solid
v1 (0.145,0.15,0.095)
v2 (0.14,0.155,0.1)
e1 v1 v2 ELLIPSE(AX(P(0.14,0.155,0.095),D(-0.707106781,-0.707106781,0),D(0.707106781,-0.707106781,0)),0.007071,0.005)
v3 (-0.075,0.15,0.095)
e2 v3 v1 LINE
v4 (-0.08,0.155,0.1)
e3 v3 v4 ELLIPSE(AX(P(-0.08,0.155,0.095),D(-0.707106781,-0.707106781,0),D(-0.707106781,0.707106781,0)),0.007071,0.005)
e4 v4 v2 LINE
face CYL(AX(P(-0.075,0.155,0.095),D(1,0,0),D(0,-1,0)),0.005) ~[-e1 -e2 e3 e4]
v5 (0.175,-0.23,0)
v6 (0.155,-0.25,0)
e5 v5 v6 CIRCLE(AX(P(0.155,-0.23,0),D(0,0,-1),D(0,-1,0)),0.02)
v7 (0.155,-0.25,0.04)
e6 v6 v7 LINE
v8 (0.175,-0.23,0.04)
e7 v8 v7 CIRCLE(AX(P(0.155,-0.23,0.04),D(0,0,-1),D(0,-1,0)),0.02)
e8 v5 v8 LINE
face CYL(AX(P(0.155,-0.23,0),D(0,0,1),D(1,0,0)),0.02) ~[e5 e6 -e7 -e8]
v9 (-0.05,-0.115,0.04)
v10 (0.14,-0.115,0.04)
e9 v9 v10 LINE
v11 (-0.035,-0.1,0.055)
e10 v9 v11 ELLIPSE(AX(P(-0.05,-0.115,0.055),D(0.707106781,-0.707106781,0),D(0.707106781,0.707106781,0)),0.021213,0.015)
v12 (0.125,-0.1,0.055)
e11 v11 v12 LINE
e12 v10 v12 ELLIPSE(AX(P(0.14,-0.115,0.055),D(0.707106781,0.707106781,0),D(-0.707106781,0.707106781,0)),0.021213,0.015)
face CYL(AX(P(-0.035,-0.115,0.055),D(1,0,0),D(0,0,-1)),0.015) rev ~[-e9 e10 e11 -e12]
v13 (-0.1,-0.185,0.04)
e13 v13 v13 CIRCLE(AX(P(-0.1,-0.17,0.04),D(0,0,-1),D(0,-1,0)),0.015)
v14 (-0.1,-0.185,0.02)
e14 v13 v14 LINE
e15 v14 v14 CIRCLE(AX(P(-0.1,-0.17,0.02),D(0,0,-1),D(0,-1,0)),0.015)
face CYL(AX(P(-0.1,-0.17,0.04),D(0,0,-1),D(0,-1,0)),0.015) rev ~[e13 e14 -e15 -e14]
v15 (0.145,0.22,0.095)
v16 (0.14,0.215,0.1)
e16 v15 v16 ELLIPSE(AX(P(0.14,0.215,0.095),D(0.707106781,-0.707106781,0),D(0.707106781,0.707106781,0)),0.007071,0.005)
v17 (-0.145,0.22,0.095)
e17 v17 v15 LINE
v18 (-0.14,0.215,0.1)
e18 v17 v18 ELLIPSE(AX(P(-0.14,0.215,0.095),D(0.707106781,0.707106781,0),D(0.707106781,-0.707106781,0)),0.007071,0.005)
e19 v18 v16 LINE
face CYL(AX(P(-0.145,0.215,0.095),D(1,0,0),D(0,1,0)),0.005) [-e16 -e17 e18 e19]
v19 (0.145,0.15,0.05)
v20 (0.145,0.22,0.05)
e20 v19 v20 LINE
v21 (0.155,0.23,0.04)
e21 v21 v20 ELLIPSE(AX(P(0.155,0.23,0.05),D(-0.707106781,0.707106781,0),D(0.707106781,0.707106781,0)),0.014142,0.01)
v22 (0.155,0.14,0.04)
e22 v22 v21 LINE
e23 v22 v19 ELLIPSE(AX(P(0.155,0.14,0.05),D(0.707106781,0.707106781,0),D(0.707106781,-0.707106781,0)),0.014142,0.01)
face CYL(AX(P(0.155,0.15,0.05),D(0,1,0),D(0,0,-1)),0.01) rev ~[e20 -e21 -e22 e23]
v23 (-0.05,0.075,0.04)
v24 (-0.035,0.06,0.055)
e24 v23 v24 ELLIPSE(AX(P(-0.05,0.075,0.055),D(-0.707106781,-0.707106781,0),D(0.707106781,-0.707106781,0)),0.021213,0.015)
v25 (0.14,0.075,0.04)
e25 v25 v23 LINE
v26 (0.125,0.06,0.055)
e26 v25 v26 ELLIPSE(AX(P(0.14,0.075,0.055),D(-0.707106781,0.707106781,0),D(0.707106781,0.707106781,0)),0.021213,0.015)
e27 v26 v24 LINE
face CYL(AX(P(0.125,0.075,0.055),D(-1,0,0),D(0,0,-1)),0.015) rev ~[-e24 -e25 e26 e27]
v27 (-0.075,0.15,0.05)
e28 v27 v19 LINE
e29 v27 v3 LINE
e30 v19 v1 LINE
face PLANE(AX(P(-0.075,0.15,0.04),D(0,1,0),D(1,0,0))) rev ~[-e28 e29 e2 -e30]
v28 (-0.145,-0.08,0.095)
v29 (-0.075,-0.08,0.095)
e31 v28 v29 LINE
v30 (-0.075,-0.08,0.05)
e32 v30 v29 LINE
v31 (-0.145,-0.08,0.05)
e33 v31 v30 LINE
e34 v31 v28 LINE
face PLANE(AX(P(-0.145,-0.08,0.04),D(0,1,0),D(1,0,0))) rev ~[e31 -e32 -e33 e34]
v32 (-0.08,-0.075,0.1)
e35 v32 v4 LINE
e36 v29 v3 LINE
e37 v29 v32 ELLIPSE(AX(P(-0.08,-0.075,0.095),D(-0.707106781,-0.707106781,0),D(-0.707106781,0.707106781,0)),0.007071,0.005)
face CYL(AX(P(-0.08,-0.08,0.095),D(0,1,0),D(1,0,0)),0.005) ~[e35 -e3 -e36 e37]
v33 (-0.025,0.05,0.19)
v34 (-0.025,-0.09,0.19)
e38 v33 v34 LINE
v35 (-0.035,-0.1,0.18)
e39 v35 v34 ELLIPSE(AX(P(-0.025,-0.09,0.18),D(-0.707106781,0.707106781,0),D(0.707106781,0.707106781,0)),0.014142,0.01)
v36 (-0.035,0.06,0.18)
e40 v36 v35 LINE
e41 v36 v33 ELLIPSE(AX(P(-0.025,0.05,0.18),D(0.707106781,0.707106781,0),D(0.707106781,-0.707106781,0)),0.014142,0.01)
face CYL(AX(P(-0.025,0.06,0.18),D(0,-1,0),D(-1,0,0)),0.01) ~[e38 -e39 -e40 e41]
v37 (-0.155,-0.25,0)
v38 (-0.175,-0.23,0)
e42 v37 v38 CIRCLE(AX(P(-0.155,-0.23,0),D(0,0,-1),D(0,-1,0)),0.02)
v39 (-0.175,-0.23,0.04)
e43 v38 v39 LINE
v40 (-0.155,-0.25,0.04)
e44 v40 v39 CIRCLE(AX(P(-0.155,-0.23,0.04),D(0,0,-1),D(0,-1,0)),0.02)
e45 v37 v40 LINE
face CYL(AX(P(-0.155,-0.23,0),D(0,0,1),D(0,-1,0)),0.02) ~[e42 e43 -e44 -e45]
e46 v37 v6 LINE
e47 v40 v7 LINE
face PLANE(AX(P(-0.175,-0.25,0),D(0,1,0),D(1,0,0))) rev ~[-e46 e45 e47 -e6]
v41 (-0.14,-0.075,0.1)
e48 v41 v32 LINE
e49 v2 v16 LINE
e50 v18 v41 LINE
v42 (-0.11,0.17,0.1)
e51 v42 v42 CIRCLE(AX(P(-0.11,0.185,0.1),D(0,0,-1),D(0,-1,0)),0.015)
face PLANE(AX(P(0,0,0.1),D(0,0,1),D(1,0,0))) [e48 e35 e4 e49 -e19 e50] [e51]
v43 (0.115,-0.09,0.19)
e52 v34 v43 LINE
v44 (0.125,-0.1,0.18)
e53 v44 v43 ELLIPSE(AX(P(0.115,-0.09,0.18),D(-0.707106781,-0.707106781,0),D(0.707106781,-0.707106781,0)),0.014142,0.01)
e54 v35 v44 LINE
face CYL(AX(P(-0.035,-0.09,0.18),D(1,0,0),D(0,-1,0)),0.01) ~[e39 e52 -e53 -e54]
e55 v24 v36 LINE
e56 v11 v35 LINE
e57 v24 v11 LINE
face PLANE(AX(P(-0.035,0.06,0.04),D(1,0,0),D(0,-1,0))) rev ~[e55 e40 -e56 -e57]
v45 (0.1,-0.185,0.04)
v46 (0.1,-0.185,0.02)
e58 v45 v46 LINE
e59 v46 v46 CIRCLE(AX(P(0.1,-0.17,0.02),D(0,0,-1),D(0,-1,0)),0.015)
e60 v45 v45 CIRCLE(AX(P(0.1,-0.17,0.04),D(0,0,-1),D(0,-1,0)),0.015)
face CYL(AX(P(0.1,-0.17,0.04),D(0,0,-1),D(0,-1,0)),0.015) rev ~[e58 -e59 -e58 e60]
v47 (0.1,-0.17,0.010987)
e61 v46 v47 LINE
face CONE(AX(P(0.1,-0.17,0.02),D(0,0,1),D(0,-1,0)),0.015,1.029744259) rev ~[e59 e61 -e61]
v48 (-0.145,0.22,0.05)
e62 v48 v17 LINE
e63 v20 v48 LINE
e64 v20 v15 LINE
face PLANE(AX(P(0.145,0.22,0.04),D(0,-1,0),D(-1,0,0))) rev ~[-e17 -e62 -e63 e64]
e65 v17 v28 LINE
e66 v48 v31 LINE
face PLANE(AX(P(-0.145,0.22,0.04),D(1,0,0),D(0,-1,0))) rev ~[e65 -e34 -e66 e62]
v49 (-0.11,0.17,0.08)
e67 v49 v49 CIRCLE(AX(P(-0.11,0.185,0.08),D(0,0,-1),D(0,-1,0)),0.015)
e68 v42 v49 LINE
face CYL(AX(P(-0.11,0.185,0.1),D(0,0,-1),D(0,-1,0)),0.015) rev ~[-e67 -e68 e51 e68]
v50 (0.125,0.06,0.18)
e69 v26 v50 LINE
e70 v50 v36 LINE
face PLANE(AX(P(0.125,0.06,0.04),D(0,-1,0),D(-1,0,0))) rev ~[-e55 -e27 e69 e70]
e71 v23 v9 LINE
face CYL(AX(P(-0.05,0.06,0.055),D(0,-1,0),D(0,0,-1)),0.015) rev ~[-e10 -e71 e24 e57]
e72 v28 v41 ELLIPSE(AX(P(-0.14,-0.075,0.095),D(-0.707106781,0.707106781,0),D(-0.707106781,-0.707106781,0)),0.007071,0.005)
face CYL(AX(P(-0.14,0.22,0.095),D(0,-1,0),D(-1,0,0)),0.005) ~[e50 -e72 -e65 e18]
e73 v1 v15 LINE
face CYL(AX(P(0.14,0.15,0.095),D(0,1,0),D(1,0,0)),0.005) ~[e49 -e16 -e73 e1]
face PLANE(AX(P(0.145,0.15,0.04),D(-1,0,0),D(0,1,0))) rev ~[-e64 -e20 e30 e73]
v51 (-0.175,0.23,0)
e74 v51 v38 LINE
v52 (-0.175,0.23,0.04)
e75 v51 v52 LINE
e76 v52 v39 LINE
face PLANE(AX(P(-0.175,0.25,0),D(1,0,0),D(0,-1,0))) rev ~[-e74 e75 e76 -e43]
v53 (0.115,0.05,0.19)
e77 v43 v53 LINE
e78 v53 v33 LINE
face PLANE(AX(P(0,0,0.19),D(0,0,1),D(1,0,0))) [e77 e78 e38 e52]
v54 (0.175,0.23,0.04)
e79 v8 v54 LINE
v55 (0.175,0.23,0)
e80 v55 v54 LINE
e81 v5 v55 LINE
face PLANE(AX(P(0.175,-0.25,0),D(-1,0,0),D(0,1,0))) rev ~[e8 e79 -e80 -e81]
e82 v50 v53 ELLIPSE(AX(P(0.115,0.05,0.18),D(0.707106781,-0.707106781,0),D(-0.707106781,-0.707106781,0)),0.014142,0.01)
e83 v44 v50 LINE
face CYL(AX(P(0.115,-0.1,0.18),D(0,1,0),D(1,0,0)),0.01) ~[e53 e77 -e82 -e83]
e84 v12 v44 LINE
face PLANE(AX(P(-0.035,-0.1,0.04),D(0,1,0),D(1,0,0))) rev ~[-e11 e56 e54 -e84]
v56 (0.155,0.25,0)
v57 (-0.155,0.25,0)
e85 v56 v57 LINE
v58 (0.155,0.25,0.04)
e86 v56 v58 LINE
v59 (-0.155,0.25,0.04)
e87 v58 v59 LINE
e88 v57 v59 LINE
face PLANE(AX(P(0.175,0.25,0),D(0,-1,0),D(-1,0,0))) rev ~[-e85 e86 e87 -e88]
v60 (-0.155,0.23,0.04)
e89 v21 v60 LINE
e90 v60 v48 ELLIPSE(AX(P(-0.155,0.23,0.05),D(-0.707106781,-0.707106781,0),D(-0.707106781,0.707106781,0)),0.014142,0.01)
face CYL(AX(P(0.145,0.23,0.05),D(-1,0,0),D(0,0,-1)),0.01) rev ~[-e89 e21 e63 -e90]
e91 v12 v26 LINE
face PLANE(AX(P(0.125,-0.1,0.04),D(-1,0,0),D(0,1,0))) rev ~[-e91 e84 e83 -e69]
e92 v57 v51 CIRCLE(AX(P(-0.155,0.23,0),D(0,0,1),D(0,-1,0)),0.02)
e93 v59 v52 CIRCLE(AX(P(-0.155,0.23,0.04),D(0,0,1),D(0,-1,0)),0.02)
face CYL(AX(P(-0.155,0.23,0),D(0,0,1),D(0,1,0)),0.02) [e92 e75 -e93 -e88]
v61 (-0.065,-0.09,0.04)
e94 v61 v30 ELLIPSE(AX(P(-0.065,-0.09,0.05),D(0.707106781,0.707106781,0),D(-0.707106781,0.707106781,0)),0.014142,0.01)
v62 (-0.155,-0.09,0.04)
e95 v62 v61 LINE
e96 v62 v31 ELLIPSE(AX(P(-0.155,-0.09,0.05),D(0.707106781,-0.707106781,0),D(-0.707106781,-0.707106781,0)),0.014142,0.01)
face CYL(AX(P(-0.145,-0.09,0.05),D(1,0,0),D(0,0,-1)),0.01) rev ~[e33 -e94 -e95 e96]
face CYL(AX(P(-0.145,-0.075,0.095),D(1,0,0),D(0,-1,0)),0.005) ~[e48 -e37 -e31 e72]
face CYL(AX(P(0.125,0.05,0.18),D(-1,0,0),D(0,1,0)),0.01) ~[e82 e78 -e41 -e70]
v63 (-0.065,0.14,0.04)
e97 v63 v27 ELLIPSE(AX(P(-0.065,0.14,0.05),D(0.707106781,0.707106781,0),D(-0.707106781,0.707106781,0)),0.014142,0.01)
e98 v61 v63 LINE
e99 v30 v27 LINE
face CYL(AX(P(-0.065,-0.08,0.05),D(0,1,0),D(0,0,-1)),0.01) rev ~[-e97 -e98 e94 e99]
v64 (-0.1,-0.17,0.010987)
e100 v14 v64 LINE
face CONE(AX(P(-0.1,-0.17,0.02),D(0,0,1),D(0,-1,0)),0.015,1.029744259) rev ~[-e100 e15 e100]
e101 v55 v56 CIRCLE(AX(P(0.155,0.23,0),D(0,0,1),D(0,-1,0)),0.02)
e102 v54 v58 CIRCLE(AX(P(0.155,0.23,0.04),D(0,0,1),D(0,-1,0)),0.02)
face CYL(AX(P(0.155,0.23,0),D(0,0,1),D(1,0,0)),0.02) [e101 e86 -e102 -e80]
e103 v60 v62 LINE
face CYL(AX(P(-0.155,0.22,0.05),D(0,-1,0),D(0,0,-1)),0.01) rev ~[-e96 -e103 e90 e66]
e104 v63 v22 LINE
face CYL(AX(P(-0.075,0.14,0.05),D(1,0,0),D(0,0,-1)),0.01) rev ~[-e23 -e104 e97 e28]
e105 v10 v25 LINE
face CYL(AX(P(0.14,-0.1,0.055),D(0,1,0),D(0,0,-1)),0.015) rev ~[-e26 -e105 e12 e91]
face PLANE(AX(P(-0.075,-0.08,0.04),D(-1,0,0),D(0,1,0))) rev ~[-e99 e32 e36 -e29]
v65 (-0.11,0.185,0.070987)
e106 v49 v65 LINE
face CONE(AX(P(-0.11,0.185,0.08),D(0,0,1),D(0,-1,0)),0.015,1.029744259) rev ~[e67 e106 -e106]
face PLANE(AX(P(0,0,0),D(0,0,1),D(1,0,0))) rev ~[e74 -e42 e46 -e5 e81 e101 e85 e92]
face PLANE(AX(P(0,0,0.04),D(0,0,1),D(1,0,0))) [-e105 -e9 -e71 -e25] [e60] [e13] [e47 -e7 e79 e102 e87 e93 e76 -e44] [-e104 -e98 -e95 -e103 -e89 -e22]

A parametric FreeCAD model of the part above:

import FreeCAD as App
import Part
import Sketcher
Q = App.Units.Quantity


def edges_at(feature, points):
    """Names of the edges that pass closest to the given points."""
    edges = feature.Shape.Edges
    near = lambda p: min(range(len(edges)), key=lambda i: edges[i].distToShape(Part.Vertex(*p))[0])
    return sorted({f"Edge{near(p) + 1}" for p in points})


def add_polygon(sketch, points):
    """Adds a closed chain of lines whose ends are joined by coincident constraints."""
    first, n = sketch.GeometryCount, len(points)
    for a, b in zip(points, points[1:] + points[:1]):
        sketch.addGeometry(Part.LineSegment(App.Vector(*a, 0), App.Vector(*b, 0)), False)
    for i in range(n):
        sketch.addConstraint(Sketcher.Constraint("Coincident", first + i, 2, first + (i + 1) % n, 1))

doc = App.newDocument("Part")
params = doc.addObject("Spreadsheet::Sheet", "Params")
for row, (alias, value) in enumerate([
    ("sketch1_height", "0.5 mm"),
    ("sketch1_width", "0.35 mm"),
    ("pad1_length", "0.04 mm"),
    ("sketch2_height", "0.3 mm"),
    ("sketch2_width", "0.07 mm"),
    ("pad2_length", "0.06 mm"),
    ("sketch3_height", "0.07 mm"),
    ("sketch3_width", "0.22 mm"),
    ("pad3_length", "0.06 mm"),
    ("sketch4_width", "0.16 mm"),
    ("pad4_length", "0.15 mm"),
    ("sketch5_diameter", "0.03 mm"),
    ("hole_diameter", "0.03 mm"),
    ("hole_depth", "0.02 mm"),
    ("sketch6_diameter", "0.03 mm"),
    ("hole2_diameter", "0.03 mm"),
    ("hole2_depth", "0.02 mm"),
    ("fillet_radius", "0.02 mm"),
    ("fillet2_radius", "0.015 mm"),
    ("fillet3_radius", "0.01 mm"),
    ("fillet4_radius", "0.01 mm"),
    ("fillet5_radius", "0.005 mm"),
], start=1):
    params.set(f"A{row}", alias)
    params.set(f"B{row}", "=" + value)
    params.setAlias(f"B{row}", alias)

body = doc.addObject("PartDesign::Body", "Body")

# Sketch on XY plane
sketch1 = body.newObject("Sketcher::SketchObject", "Sketch")
sketch1.AttachmentSupport = (doc.getObject("XY_Plane"), [""])
sketch1.MapMode = "FlatFace"
add_polygon(sketch1, [(0.17, -0.25), (0.17, 0.25), (-0.17, 0.25), (-0.17, -0.25)])  # lines 0-3
sketch1.addConstraint(Sketcher.Constraint("Vertical", 0))
sketch1.addConstraint(Sketcher.Constraint("Horizontal", 1))
sketch1.addConstraint(Sketcher.Constraint("Vertical", 2))
sketch1.addConstraint(Sketcher.Constraint("Horizontal", 3))
sketch1.addConstraint(Sketcher.Constraint("Symmetric", 0, 2, 2, 2, -1, 1))
sketch1.addConstraint(Sketcher.Constraint("DistanceY", 0, 1, 0, 2, Q("0.5 mm")))
sketch1.addConstraint(Sketcher.Constraint("DistanceX", 1, 2, 1, 1, Q("0.35 mm")))
sketch1.setExpression("Constraints[9]", "Params.sketch1_height")
sketch1.setExpression("Constraints[10]", "Params.sketch1_width")
pad1 = body.newObject("PartDesign::Pad", "Pad")
pad1.Profile = sketch1
pad1.setExpression("Length", "Params.pad1_length")

# Sketch on XY plane
sketch2 = body.newObject("Sketcher::SketchObject", "Sketch001")
sketch2.AttachmentSupport = (doc.getObject("XY_Plane"), [""])
sketch2.MapMode = "FlatFace"
sketch2.AttachmentOffset = App.Placement(App.Vector(0, 0, 0.04), App.Rotation())
add_polygon(sketch2, [(-0.14, 0.22), (-0.14, -0.08), (-0.07, -0.08), (-0.07, 0.22)])  # lines 0-3
sketch2.addConstraint(Sketcher.Constraint("Vertical", 0))
sketch2.addConstraint(Sketcher.Constraint("Horizontal", 1))
sketch2.addConstraint(Sketcher.Constraint("Vertical", 2))
sketch2.addConstraint(Sketcher.Constraint("Horizontal", 3))
sketch2.addConstraint(Sketcher.Constraint("DistanceY", 0, 2, 0, 1, Q("0.3 mm")))
sketch2.addConstraint(Sketcher.Constraint("DistanceX", 1, 1, 1, 2, Q("0.07 mm")))
sketch2.addConstraint(Sketcher.Constraint("DistanceY", 0, 2, -1, 1, Q("0.08 mm")))
sketch2.addConstraint(Sketcher.Constraint("DistanceX", 0, 2, -1, 1, Q("0.145 mm")))
sketch2.setExpression("Constraints[8]", "Params.sketch2_height")
sketch2.setExpression("Constraints[9]", "Params.sketch2_width")
pad2 = body.newObject("PartDesign::Pad", "Pad001")
pad2.Profile = sketch2
pad2.setExpression("Length", "Params.pad2_length")

# Sketch on XY plane
sketch3 = body.newObject("Sketcher::SketchObject", "Sketch002")
sketch3.AttachmentSupport = (doc.getObject("XY_Plane"), [""])
sketch3.MapMode = "FlatFace"
sketch3.AttachmentOffset = App.Placement(App.Vector(0, 0, 0.04), App.Rotation())
add_polygon(sketch3, [(-0.07, 0.22), (-0.07, 0.15), (0.14, 0.15), (0.14, 0.22)])  # lines 0-3
sketch3.addConstraint(Sketcher.Constraint("Vertical", 0))
sketch3.addConstraint(Sketcher.Constraint("Horizontal", 1))
sketch3.addConstraint(Sketcher.Constraint("Vertical", 2))
sketch3.addConstraint(Sketcher.Constraint("Horizontal", 3))
sketch3.addConstraint(Sketcher.Constraint("DistanceY", 0, 2, 0, 1, Q("0.07 mm")))
sketch3.addConstraint(Sketcher.Constraint("DistanceX", 1, 1, 1, 2, Q("0.22 mm")))
sketch3.addConstraint(Sketcher.Constraint("DistanceY", -1, 1, 0, 2, Q("0.15 mm")))
sketch3.addConstraint(Sketcher.Constraint("DistanceX", 0, 2, -1, 1, Q("0.075 mm")))
sketch3.setExpression("Constraints[8]", "Params.sketch3_height")
sketch3.setExpression("Constraints[9]", "Params.sketch3_width")
pad3 = body.newObject("PartDesign::Pad", "Pad002")
pad3.Profile = sketch3
pad3.setExpression("Length", "Params.pad3_length")

# Sketch on XY plane
sketch4 = body.newObject("Sketcher::SketchObject", "Sketch003")
sketch4.AttachmentSupport = (doc.getObject("XY_Plane"), [""])
sketch4.MapMode = "FlatFace"
sketch4.AttachmentOffset = App.Placement(App.Vector(0, 0, 0.04), App.Rotation())
add_polygon(sketch4, [(-0.04, 0.06), (-0.04, -0.1), (0.12, -0.1), (0.12, 0.06)])  # lines 0-3
sketch4.addConstraint(Sketcher.Constraint("Vertical", 0))
sketch4.addConstraint(Sketcher.Constraint("Horizontal", 1))
sketch4.addConstraint(Sketcher.Constraint("Vertical", 2))
sketch4.addConstraint(Sketcher.Constraint("Horizontal", 3))
sketch4.addConstraint(Sketcher.Constraint("Equal", 3, 0))
sketch4.addConstraint(Sketcher.Constraint("DistanceX", 1, 1, 1, 2, Q("0.16 mm")))
sketch4.addConstraint(Sketcher.Constraint("DistanceY", 0, 2, -1, 1, Q("0.1 mm")))
sketch4.addConstraint(Sketcher.Constraint("DistanceX", 0, 2, -1, 1, Q("0.035 mm")))
sketch4.setExpression("Constraints[9]", "Params.sketch4_width")
pad4 = body.newObject("PartDesign::Pad", "Pad003")
pad4.Profile = sketch4
pad4.setExpression("Length", "Params.pad4_length")

# Sketch on XY plane
sketch5 = body.newObject("Sketcher::SketchObject", "Sketch004")
sketch5.AttachmentSupport = (doc.getObject("XY_Plane"), [""])
sketch5.MapMode = "FlatFace"
sketch5.AttachmentOffset = App.Placement(App.Vector(0, 0, 0.04), App.Rotation())
sketch5.addGeometry(Part.Circle(App.Vector(-0.1, -0.17, 0), App.Vector(0, 0, 1), 0.015), False)
sketch5.addGeometry(Part.Circle(App.Vector(0.1, -0.17, 0), App.Vector(0, 0, 1), 0.015), False)
sketch5.addConstraint(Sketcher.Constraint("Equal", 0, 1))
sketch5.addConstraint(Sketcher.Constraint("Symmetric", 0, 3, 1, 3, -2))
sketch5.addConstraint(Sketcher.Constraint("Diameter", 0, Q("0.03 mm")))
sketch5.addConstraint(Sketcher.Constraint("DistanceX", 0, 3, -1, 1, Q("0.1 mm")))
sketch5.addConstraint(Sketcher.Constraint("DistanceY", 0, 3, -1, 1, Q("0.17 mm")))
sketch5.setExpression("Constraints[2]", "Params.sketch5_diameter")
doc.recompute()
hole = body.newObject("PartDesign::Hole", "Hole")
hole.Profile = sketch5
hole.ThreadType = "None"
hole.setExpression("Diameter", "Params.hole_diameter")
hole.DepthType = "Dimension"
hole.setExpression("Depth", "Params.hole_depth")
hole.DrillPoint = "Angled"
hole.DrillPointAngle = 118

# Sketch on XY plane
sketch6 = body.newObject("Sketcher::SketchObject", "Sketch005")
sketch6.AttachmentSupport = (doc.getObject("XY_Plane"), [""])
sketch6.MapMode = "FlatFace"
sketch6.AttachmentOffset = App.Placement(App.Vector(0, 0, 0.1), App.Rotation())
sketch6.addGeometry(Part.Circle(App.Vector(-0.11, 0.185, 0), App.Vector(0, 0, 1), 0.015), False)
sketch6.addConstraint(Sketcher.Constraint("Diameter", 0, Q("0.03 mm")))
sketch6.addConstraint(Sketcher.Constraint("DistanceX", 0, 3, -1, 1, Q("0.11 mm")))
sketch6.addConstraint(Sketcher.Constraint("DistanceY", -1, 1, 0, 3, Q("0.185 mm")))
sketch6.setExpression("Constraints[0]", "Params.sketch6_diameter")
doc.recompute()
hole2 = body.newObject("PartDesign::Hole", "Hole001")
hole2.Profile = sketch6
hole2.ThreadType = "None"
hole2.setExpression("Diameter", "Params.hole2_diameter")
hole2.DepthType = "Dimension"
hole2.setExpression("Depth", "Params.hole2_depth")
hole2.DrillPoint = "Angled"
hole2.DrillPointAngle = 118
doc.recompute()

fillet = body.newObject("PartDesign::Fillet", "Fillet")
fillet.Base = (hole2, edges_at(hole2, [
    (0.175, 0.25, 0.02),
    (-0.175, 0.25, 0.02),
    (0.175, -0.25, 0.02),
    (-0.175, -0.25, 0.02),
]))
fillet.setExpression("Radius", "Params.fillet_radius")
doc.recompute()

fillet2 = body.newObject("PartDesign::Fillet", "Fillet001")
fillet2.Base = (fillet, edges_at(fillet, [
    (0.125, -0.02, 0.04),
    (0.045, -0.1, 0.04),
    (-0.035, -0.02, 0.04),
    (0.045, 0.06, 0.04),
]))
fillet2.setExpression("Radius", "Params.fillet2_radius")
doc.recompute()

fillet3 = body.newObject("PartDesign::Fillet", "Fillet002")
fillet3.Base = (fillet2, edges_at(fillet2, [
    (0.045, -0.1, 0.19),
    (-0.035, -0.02, 0.19),
    (0.045, 0.06, 0.19),
    (0.125, -0.02, 0.19),
]))
fillet3.setExpression("Radius", "Params.fillet3_radius")
doc.recompute()

fillet4 = body.newObject("PartDesign::Fillet", "Fillet003")
fillet4.Base = (fillet3, edges_at(fillet3, [
    (-0.075, 0.035, 0.04),
    (0.035, 0.15, 0.04),
    (0.145, 0.185, 0.04),
    (0, 0.22, 0.04),
    (-0.145, 0.07, 0.04),
    (-0.11, -0.08, 0.04),
]))
fillet4.setExpression("Radius", "Params.fillet4_radius")
doc.recompute()

fillet5 = body.newObject("PartDesign::Fillet", "Fillet004")
fillet5.Base = (fillet4, edges_at(fillet4, [
    (-0.075, 0.035, 0.1),
    (0.035, 0.15, 0.1),
    (0.145, 0.185, 0.1),
    (0, 0.22, 0.1),
    (-0.145, 0.07, 0.1),
    (-0.11, -0.08, 0.1),
]))
fillet5.setExpression("Radius", "Params.fillet5_radius")

doc.recompute()
